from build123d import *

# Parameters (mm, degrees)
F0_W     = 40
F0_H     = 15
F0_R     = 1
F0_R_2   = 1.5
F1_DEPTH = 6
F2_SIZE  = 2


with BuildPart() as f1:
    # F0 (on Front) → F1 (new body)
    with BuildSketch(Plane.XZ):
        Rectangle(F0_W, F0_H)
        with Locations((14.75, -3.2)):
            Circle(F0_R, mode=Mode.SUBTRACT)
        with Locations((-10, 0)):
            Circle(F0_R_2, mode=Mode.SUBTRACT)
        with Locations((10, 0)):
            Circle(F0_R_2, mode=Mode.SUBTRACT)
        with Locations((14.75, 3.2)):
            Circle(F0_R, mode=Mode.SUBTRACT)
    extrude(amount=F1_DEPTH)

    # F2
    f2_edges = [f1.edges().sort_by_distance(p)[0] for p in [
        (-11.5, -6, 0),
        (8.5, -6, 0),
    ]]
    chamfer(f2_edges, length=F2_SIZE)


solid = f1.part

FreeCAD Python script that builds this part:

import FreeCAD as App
import Part
import Sketcher
from FreeCAD import Vector


def edges_at(feature, points):
    """Names of the edges that pass closest to the given points."""
    edges = feature.Shape.Edges
    near = lambda p: min(range(len(edges)), key=lambda i: edges[i].distToShape(Part.Vertex(*p))[0])
    return sorted({f"Edge{near(p) + 1}" for p in points})

doc = App.newDocument("Part")
body = doc.addObject("PartDesign::Body", "Body")

# Sketch on XZ plane
sketch1 = doc.addObject("Sketcher::SketchObject", "Sketch")
body.addObject(sketch1)
sketch1.AttachmentSupport = (doc.XZ_Plane, [""])
sketch1.MapMode = "FlatFace"
sketch1.addGeometry([
    Part.LineSegment(Vector(-20, 7.5, 0), Vector(-20, -7.5, 0)),  # 0
    Part.LineSegment(Vector(-20, -7.5, 0), Vector(20, -7.5, 0)),  # 1
    Part.LineSegment(Vector(20, -7.5, 0), Vector(20, 7.5, 0)),  # 2
    Part.LineSegment(Vector(20, 7.5, 0), Vector(-20, 7.5, 0)),  # 3
    Part.Circle(Vector(14.8, -3.2, 0), Vector(0, 0, 1), 1),  # 4
    Part.Circle(Vector(-10, 0, 0), Vector(0, 0, 1), 1.5),  # 5
    Part.Circle(Vector(10, 0, 0), Vector(0, 0, 1), 1.5),  # 6
    Part.Circle(Vector(14.8, 3.2, 0), Vector(0, 0, 1), 1),  # 7
], False)
sketch1.addConstraint([
    Sketcher.Constraint("Coincident", 0, 2, 1, 1),
    Sketcher.Constraint("Coincident", 1, 2, 2, 1),
    Sketcher.Constraint("Coincident", 2, 2, 3, 1),
    Sketcher.Constraint("Coincident", 3, 2, 0, 1),
    Sketcher.Constraint("Vertical", 0),
    Sketcher.Constraint("Horizontal", 1),
    Sketcher.Constraint("Vertical", 2),
    Sketcher.Constraint("Horizontal", 3),
    Sketcher.Constraint("Equal", 5, 6),
    Sketcher.Constraint("Equal", 4, 7),
    Sketcher.Constraint("Symmetric", 5, 3, 6, 3, -1, 1),
    Sketcher.Constraint("Symmetric", 0, 2, 2, 2, -1, 1),
    Sketcher.Constraint("Symmetric", 4, 3, 7, 3, -1),
    Sketcher.Constraint("PointOnObject", 5, 3, -1),
    Sketcher.Constraint("Diameter", 4, 2.0),
    Sketcher.Constraint("Diameter", 5, 3.0),
    Sketcher.Constraint("DistanceX", 1, 1, 1, 2, 40.0),
    Sketcher.Constraint("DistanceY", 0, 2, 0, 1, 15.0),
    Sketcher.Constraint("DistanceX", 5, 3, -1, 1, 10.0),
    Sketcher.Constraint("DistanceY", 4, 3, -1, 1, 3.2),
    Sketcher.Constraint("DistanceX", -1, 1, 4, 3, 14.75),
])
pad1 = doc.addObject("PartDesign::Pad", "Pad")
body.addObject(pad1)
pad1.Profile = sketch1
pad1.Length = 6
doc.recompute()

chamfer = doc.addObject("PartDesign::Chamfer", "Chamfer")
body.addObject(chamfer)
chamfer.Base = (pad1, edges_at(pad1, [(-11.5, -6, 0), (8.5, -6, 0)]))
chamfer.Size = 2

doc.recompute()
